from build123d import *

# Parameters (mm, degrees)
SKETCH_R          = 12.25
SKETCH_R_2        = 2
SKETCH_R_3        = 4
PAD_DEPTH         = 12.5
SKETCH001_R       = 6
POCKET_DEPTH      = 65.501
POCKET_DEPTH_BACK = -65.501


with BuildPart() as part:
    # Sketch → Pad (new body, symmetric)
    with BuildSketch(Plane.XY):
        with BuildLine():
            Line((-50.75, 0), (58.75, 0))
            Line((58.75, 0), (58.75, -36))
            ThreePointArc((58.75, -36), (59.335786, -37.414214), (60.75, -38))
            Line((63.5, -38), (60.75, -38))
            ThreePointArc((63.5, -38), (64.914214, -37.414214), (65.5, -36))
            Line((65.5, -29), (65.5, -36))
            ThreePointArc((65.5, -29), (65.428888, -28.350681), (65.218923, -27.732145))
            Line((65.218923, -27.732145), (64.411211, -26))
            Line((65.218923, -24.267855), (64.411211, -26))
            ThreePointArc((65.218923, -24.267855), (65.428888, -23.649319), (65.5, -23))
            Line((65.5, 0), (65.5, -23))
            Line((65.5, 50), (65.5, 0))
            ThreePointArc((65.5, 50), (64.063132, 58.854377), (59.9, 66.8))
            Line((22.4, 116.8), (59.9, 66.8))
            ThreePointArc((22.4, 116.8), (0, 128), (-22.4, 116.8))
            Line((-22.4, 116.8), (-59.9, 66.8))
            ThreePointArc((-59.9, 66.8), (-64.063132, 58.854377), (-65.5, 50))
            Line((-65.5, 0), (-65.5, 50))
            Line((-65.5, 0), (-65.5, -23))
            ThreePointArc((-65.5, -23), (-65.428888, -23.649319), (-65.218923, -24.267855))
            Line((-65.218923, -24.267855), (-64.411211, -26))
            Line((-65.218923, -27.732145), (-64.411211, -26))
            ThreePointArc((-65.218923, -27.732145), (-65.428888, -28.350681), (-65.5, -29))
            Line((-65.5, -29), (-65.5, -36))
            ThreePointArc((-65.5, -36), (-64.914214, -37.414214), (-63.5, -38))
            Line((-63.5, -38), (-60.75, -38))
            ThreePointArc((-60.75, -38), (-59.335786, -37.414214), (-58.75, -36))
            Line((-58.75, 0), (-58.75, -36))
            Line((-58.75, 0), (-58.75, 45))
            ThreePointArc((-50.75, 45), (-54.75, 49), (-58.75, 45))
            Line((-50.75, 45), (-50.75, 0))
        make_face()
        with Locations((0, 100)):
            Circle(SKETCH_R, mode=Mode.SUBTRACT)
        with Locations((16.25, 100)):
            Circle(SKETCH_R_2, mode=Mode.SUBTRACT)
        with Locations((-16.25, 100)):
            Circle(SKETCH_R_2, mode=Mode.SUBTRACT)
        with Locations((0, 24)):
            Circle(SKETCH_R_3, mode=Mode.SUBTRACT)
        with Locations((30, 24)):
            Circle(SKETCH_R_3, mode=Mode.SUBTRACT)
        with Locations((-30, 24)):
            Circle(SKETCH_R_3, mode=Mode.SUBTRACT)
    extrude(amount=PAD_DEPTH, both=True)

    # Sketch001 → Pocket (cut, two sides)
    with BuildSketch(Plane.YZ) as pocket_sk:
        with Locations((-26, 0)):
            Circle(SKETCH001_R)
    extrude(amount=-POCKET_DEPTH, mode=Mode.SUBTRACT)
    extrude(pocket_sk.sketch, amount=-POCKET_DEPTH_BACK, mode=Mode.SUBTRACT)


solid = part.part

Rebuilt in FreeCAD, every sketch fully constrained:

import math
import FreeCAD as App
import Part
import Sketcher
Q = App.Units.Quantity

doc = App.newDocument("Part")
body = doc.addObject("PartDesign::Body", "Body")

# Sketch on XY plane
sketch1 = body.newObject("Sketcher::SketchObject", "Sketch")
sketch1.AttachmentSupport = (doc.getObject("XY_Plane"), [""])
sketch1.MapMode = "FlatFace"
sketch1.addGeometry(Part.LineSegment(App.Vector(-50.75, 0, 0), App.Vector(58.75, 0, 0)), False)
sketch1.addGeometry(Part.LineSegment(App.Vector(58.75, 0, 0), App.Vector(58.75, -36, 0)), False)
sketch1.addGeometry(Part.ArcOfCircle(Part.Circle(App.Vector(60.749999, -36.000001, 0), App.Vector(0, 0, 1), 1.999999), math.radians(179.999957), math.radians(270.000043)), False)
sketch1.addGeometry(Part.LineSegment(App.Vector(60.75, -38, 0), App.Vector(63.5, -38, 0)), False)
sketch1.addGeometry(Part.ArcOfCircle(Part.Circle(App.Vector(63.500001, -36.000001, 0), App.Vector(0, 0, 1), 1.999999), math.radians(-90.000043), math.radians(0.000043)), False)
sketch1.addGeometry(Part.LineSegment(App.Vector(65.5, -36, 0), App.Vector(65.5, -29, 0)), False)
sketch1.addGeometry(Part.ArcOfCircle(Part.Circle(App.Vector(62.500006, -28.999999, 0), App.Vector(0, 0, 1), 2.999994), math.radians(-0.000013), math.radians(25.00004)), False)
sketch1.addGeometry(Part.LineSegment(App.Vector(65.218923, -27.732145, 0), App.Vector(64.411211, -26, 0)), False)
sketch1.addGeometry(Part.LineSegment(App.Vector(64.411211, -26, 0), App.Vector(65.218923, -24.267855, 0)), False)
sketch1.addGeometry(Part.ArcOfCircle(Part.Circle(App.Vector(62.500006, -23.000001, 0), App.Vector(0, 0, 1), 2.999994), math.radians(-25.00004), math.radians(0.000013)), False)
sketch1.addGeometry(Part.LineSegment(App.Vector(65.5, -23, 0), App.Vector(65.5, 50, 0)), False)
sketch1.addGeometry(Part.ArcOfCircle(Part.Circle(App.Vector(37.499991, 49.999997, 0), App.Vector(0, 0, 1), 28.000009), math.radians(0.000006), math.radians(36.869892)), False)
sketch1.addGeometry(Part.LineSegment(App.Vector(59.9, 66.8, 0), App.Vector(22.4, 116.8, 0)), False)
sketch1.addGeometry(Part.ArcOfCircle(Part.Circle(App.Vector(0, 100, 0), App.Vector(0, 0, 1), 28), math.radians(36.869898), math.radians(143.130102)), False)
sketch1.addGeometry(Part.LineSegment(App.Vector(-22.4, 116.8, 0), App.Vector(-59.9, 66.8, 0)), False)
sketch1.addGeometry(Part.ArcOfCircle(Part.Circle(App.Vector(-37.499991, 49.999997, 0), App.Vector(0, 0, 1), 28.000009), math.radians(143.130108), math.radians(179.999994)), False)
sketch1.addGeometry(Part.LineSegment(App.Vector(-65.5, 50, 0), App.Vector(-65.5, -23, 0)), False)
sketch1.addGeometry(Part.ArcOfCircle(Part.Circle(App.Vector(-62.500006, -23.000001, 0), App.Vector(0, 0, 1), 2.999994), math.radians(179.999987), math.radians(205.00004)), False)
sketch1.addGeometry(Part.LineSegment(App.Vector(-65.218923, -24.267855, 0), App.Vector(-64.411211, -26, 0)), False)
sketch1.addGeometry(Part.LineSegment(App.Vector(-64.411211, -26, 0), App.Vector(-65.218923, -27.732145, 0)), False)
sketch1.addGeometry(Part.ArcOfCircle(Part.Circle(App.Vector(-62.500006, -28.999999, 0), App.Vector(0, 0, 1), 2.999994), math.radians(154.99996), math.radians(180.000013)), False)
sketch1.addGeometry(Part.LineSegment(App.Vector(-65.5, -29, 0), App.Vector(-65.5, -36, 0)), False)
sketch1.addGeometry(Part.ArcOfCircle(Part.Circle(App.Vector(-63.500001, -36.000001, 0), App.Vector(0, 0, 1), 1.999999), math.radians(179.999957), math.radians(270.000043)), False)
sketch1.addGeometry(Part.LineSegment(App.Vector(-63.5, -38, 0), App.Vector(-60.75, -38, 0)), False)
sketch1.addGeometry(Part.ArcOfCircle(Part.Circle(App.Vector(-60.749999, -36.000001, 0), App.Vector(0, 0, 1), 1.999999), math.radians(-90.000043), math.radians(0.000043)), False)
sketch1.addGeometry(Part.LineSegment(App.Vector(-58.75, -36, 0), App.Vector(-58.75, 45, 0)), False)
sketch1.addGeometry(Part.ArcOfCircle(Part.Circle(App.Vector(-54.75, 45, 0), App.Vector(0, 0, 1), 4), math.radians(0), math.radians(180)), False)
sketch1.addGeometry(Part.LineSegment(App.Vector(-50.75, 45, 0), App.Vector(-50.75, 0, 0)), False)
sketch1.addGeometry(Part.Circle(App.Vector(-30, 24, 0), App.Vector(0, 0, 1), 4), False)
sketch1.addGeometry(Part.Circle(App.Vector(0, 24, 0), App.Vector(0, 0, 1), 4), False)
sketch1.addGeometry(Part.Circle(App.Vector(30, 24, 0), App.Vector(0, 0, 1), 4), False)
sketch1.addGeometry(Part.Circle(App.Vector(-16.25, 100, 0), App.Vector(0, 0, 1), 2), False)
sketch1.addGeometry(Part.Circle(App.Vector(0, 100, 0), App.Vector(0, 0, 1), 12.25), False)
sketch1.addGeometry(Part.Circle(App.Vector(16.25, 100, 0), App.Vector(0, 0, 1), 2), False)
sketch1.addConstraint(Sketcher.Constraint("Coincident", 0, 2, 1, 1))
sketch1.addConstraint(Sketcher.Constraint("Tangent", 1, 2, 2, 1))
sketch1.addConstraint(Sketcher.Constraint("Tangent", 2, 2, 3, 1))
sketch1.addConstraint(Sketcher.Constraint("Tangent", 3, 2, 4, 1))
sketch1.addConstraint(Sketcher.Constraint("Tangent", 4, 2, 5, 1))
sketch1.addConstraint(Sketcher.Constraint("Tangent", 5, 2, 6, 1))
sketch1.addConstraint(Sketcher.Constraint("Tangent", 6, 2, 7, 1))
sketch1.addConstraint(Sketcher.Constraint("Coincident", 7, 2, 8, 1))
sketch1.addConstraint(Sketcher.Constraint("Tangent", 8, 2, 9, 1))
sketch1.addConstraint(Sketcher.Constraint("Tangent", 9, 2, 10, 1))
sketch1.addConstraint(Sketcher.Constraint("Tangent", 10, 2, 11, 1))
sketch1.addConstraint(Sketcher.Constraint("Tangent", 11, 2, 12, 1))
sketch1.addConstraint(Sketcher.Constraint("Tangent", 12, 2, 13, 1))
sketch1.addConstraint(Sketcher.Constraint("Tangent", 13, 2, 14, 1))
sketch1.addConstraint(Sketcher.Constraint("Tangent", 14, 2, 15, 1))
sketch1.addConstraint(Sketcher.Constraint("Tangent", 15, 2, 16, 1))
sketch1.addConstraint(Sketcher.Constraint("Tangent", 16, 2, 17, 1))
sketch1.addConstraint(Sketcher.Constraint("Tangent", 17, 2, 18, 1))
sketch1.addConstraint(Sketcher.Constraint("Coincident", 18, 2, 19, 1))
sketch1.addConstraint(Sketcher.Constraint("Tangent", 19, 2, 20, 1))
sketch1.addConstraint(Sketcher.Constraint("Tangent", 20, 2, 21, 1))
sketch1.addConstraint(Sketcher.Constraint("Tangent", 21, 2, 22, 1))
sketch1.addConstraint(Sketcher.Constraint("Tangent", 22, 2, 23, 1))
sketch1.addConstraint(Sketcher.Constraint("Tangent", 23, 2, 24, 1))
sketch1.addConstraint(Sketcher.Constraint("Tangent", 24, 2, 25, 1))
sketch1.addConstraint(Sketcher.Constraint("Tangent", 25, 2, 26, 2))
sketch1.addConstraint(Sketcher.Constraint("Tangent", 26, 1, 27, 1))
sketch1.addConstraint(Sketcher.Constraint("Coincident", 27, 2, 0, 1))
sketch1.addConstraint(Sketcher.Constraint("Horizontal", 0))
sketch1.addConstraint(Sketcher.Constraint("Vertical", 1))
sketch1.addConstraint(Sketcher.Constraint("Horizontal", 3))
sketch1.addConstraint(Sketcher.Constraint("Vertical", 5))
sketch1.addConstraint(Sketcher.Constraint("Vertical", 10))
sketch1.addConstraint(Sketcher.Constraint("Vertical", 16))
sketch1.addConstraint(Sketcher.Constraint("Vertical", 21))
sketch1.addConstraint(Sketcher.Constraint("Horizontal", 23))
sketch1.addConstraint(Sketcher.Constraint("Vertical", 25))
sketch1.addConstraint(Sketcher.Constraint("Vertical", 27))
sketch1.addConstraint(Sketcher.Constraint("Coincident", 32, 3, 13, 3))
sketch1.addConstraint(Sketcher.Constraint("Equal", 2, 4))
sketch1.addConstraint(Sketcher.Constraint("Equal", 6, 9))
sketch1.addConstraint(Sketcher.Constraint("Equal", 11, 15))
sketch1.addConstraint(Sketcher.Constraint("Equal", 9, 17))
sketch1.addConstraint(Sketcher.Constraint("Equal", 17, 20))
sketch1.addConstraint(Sketcher.Constraint("Equal", 4, 22))
sketch1.addConstraint(Sketcher.Constraint("Equal", 22, 24))
sketch1.addConstraint(Sketcher.Constraint("Equal", 26, 28))
sketch1.addConstraint(Sketcher.Constraint("Equal", 28, 29))
sketch1.addConstraint(Sketcher.Constraint("Equal", 29, 30))
sketch1.addConstraint(Sketcher.Constraint("Equal", 24, 31))
sketch1.addConstraint(Sketcher.Constraint("Equal", 31, 33))
sketch1.addConstraint(Sketcher.Constraint("Symmetric", 11, 3, 15, 3, -2))
sketch1.addConstraint(Sketcher.Constraint("Symmetric", 6, 3, 20, 3, -2))
sketch1.addConstraint(Sketcher.Constraint("Symmetric", 2, 3, 24, 3, -2))
sketch1.addConstraint(Sketcher.Constraint("Symmetric", 28, 3, 30, 3, -2))
sketch1.addConstraint(Sketcher.Constraint("Symmetric", 31, 3, 33, 3, -2))
sketch1.addConstraint(Sketcher.Constraint("Symmetric", 8, 2, 17, 2, -2))
sketch1.addConstraint(Sketcher.Constraint("PointOnObject", 13, 3, -2))
sketch1.addConstraint(Sketcher.Constraint("PointOnObject", 29, 3, -2))
sketch1.addConstraint(Sketcher.Constraint("PointOnObject", 0, 2, -1))
sketch1.addConstraint(Sketcher.Constraint("Parallel", 7, 18))
sketch1.addConstraint(Sketcher.Constraint("Parallel", 8, 19))
sketch1.addConstraint(Sketcher.Constraint("Horizontal", 28, 3, 29, 3))
sketch1.addConstraint(Sketcher.Constraint("Horizontal", 13, 3, 31, 3))
sketch1.addConstraint(Sketcher.Constraint("Vertical", 6, 3, 9, 3))
sketch1.addConstraint(Sketcher.Constraint("Diameter", 28, 8.0))
sketch1.addConstraint(Sketcher.Constraint("Diameter", 31, 4.0))
sketch1.addConstraint(Sketcher.Constraint("Radius", 13, 28.0))
sketch1.addConstraint(Sketcher.Constraint("Diameter", 32, 24.5))
sketch1.addConstraint(Sketcher.Constraint("DistanceY", 1, 2, 1, 1, 36.0))
sketch1.addConstraint(Sketcher.Constraint("DistanceY", 5, 1, 5, 2, 7.0))
sketch1.addConstraint(Sketcher.Constraint("DistanceY", 10, 1, 10, 2, 73.0))
sketch1.addConstraint(Sketcher.Constraint("DistanceY", 25, 1, 25, 2, 81.0))
sketch1.addConstraint(Sketcher.Constraint("Angle", 7, Q("114.999987 deg")))
sketch1.addConstraint(Sketcher.Constraint("DistanceX", 0, 1, 0, 2, 109.5))
sketch1.addConstraint(Sketcher.Constraint("DistanceY", 9, 3, -1, 1, 23.000001))
sketch1.addConstraint(Sketcher.Constraint("DistanceY", -1, 1, 13, 3, 100.0))
sketch1.addConstraint(Sketcher.Constraint("DistanceX", 28, 3, -1, 1, 30.0))
sketch1.addConstraint(Sketcher.Constraint("DistanceY", -1, 1, 28, 3, 24.0))
sketch1.addConstraint(Sketcher.Constraint("DistanceY", 11, 2, 12, 2, 50.0))
sketch1.addConstraint(Sketcher.Constraint("Distance", 12, 62.5))
sketch1.addConstraint(Sketcher.Constraint("DistanceX", 26, 3, 31, 3, 38.5))
sketch1.addConstraint(Sketcher.Constraint("Radius", 6, 2.999994))
pad1 = body.newObject("PartDesign::Pad", "Pad")
pad1.Profile = sketch1
pad1.Length = 25
pad1.Midplane = True

# Sketch on YZ plane
sketch2 = body.newObject("Sketcher::SketchObject", "Sketch001")
sketch2.AttachmentSupport = (doc.getObject("YZ_Plane"), [""])
sketch2.MapMode = "FlatFace"
sketch2.addGeometry(Part.Circle(App.Vector(-26, 0, 0), App.Vector(0, 0, 1), 6), False)
sketch2.addConstraint(Sketcher.Constraint("PointOnObject", 0, 3, -1))
sketch2.addConstraint(Sketcher.Constraint("Diameter", 0, 12.0))
sketch2.addConstraint(Sketcher.Constraint("DistanceX", 0, 3, -1, 1, 26.0))
pocket1 = body.newObject("PartDesign::Pocket", "Pocket")
pocket1.Profile = sketch2
pocket1.Type = "ThroughAll"
pocket1.Midplane = True

doc.recompute()
